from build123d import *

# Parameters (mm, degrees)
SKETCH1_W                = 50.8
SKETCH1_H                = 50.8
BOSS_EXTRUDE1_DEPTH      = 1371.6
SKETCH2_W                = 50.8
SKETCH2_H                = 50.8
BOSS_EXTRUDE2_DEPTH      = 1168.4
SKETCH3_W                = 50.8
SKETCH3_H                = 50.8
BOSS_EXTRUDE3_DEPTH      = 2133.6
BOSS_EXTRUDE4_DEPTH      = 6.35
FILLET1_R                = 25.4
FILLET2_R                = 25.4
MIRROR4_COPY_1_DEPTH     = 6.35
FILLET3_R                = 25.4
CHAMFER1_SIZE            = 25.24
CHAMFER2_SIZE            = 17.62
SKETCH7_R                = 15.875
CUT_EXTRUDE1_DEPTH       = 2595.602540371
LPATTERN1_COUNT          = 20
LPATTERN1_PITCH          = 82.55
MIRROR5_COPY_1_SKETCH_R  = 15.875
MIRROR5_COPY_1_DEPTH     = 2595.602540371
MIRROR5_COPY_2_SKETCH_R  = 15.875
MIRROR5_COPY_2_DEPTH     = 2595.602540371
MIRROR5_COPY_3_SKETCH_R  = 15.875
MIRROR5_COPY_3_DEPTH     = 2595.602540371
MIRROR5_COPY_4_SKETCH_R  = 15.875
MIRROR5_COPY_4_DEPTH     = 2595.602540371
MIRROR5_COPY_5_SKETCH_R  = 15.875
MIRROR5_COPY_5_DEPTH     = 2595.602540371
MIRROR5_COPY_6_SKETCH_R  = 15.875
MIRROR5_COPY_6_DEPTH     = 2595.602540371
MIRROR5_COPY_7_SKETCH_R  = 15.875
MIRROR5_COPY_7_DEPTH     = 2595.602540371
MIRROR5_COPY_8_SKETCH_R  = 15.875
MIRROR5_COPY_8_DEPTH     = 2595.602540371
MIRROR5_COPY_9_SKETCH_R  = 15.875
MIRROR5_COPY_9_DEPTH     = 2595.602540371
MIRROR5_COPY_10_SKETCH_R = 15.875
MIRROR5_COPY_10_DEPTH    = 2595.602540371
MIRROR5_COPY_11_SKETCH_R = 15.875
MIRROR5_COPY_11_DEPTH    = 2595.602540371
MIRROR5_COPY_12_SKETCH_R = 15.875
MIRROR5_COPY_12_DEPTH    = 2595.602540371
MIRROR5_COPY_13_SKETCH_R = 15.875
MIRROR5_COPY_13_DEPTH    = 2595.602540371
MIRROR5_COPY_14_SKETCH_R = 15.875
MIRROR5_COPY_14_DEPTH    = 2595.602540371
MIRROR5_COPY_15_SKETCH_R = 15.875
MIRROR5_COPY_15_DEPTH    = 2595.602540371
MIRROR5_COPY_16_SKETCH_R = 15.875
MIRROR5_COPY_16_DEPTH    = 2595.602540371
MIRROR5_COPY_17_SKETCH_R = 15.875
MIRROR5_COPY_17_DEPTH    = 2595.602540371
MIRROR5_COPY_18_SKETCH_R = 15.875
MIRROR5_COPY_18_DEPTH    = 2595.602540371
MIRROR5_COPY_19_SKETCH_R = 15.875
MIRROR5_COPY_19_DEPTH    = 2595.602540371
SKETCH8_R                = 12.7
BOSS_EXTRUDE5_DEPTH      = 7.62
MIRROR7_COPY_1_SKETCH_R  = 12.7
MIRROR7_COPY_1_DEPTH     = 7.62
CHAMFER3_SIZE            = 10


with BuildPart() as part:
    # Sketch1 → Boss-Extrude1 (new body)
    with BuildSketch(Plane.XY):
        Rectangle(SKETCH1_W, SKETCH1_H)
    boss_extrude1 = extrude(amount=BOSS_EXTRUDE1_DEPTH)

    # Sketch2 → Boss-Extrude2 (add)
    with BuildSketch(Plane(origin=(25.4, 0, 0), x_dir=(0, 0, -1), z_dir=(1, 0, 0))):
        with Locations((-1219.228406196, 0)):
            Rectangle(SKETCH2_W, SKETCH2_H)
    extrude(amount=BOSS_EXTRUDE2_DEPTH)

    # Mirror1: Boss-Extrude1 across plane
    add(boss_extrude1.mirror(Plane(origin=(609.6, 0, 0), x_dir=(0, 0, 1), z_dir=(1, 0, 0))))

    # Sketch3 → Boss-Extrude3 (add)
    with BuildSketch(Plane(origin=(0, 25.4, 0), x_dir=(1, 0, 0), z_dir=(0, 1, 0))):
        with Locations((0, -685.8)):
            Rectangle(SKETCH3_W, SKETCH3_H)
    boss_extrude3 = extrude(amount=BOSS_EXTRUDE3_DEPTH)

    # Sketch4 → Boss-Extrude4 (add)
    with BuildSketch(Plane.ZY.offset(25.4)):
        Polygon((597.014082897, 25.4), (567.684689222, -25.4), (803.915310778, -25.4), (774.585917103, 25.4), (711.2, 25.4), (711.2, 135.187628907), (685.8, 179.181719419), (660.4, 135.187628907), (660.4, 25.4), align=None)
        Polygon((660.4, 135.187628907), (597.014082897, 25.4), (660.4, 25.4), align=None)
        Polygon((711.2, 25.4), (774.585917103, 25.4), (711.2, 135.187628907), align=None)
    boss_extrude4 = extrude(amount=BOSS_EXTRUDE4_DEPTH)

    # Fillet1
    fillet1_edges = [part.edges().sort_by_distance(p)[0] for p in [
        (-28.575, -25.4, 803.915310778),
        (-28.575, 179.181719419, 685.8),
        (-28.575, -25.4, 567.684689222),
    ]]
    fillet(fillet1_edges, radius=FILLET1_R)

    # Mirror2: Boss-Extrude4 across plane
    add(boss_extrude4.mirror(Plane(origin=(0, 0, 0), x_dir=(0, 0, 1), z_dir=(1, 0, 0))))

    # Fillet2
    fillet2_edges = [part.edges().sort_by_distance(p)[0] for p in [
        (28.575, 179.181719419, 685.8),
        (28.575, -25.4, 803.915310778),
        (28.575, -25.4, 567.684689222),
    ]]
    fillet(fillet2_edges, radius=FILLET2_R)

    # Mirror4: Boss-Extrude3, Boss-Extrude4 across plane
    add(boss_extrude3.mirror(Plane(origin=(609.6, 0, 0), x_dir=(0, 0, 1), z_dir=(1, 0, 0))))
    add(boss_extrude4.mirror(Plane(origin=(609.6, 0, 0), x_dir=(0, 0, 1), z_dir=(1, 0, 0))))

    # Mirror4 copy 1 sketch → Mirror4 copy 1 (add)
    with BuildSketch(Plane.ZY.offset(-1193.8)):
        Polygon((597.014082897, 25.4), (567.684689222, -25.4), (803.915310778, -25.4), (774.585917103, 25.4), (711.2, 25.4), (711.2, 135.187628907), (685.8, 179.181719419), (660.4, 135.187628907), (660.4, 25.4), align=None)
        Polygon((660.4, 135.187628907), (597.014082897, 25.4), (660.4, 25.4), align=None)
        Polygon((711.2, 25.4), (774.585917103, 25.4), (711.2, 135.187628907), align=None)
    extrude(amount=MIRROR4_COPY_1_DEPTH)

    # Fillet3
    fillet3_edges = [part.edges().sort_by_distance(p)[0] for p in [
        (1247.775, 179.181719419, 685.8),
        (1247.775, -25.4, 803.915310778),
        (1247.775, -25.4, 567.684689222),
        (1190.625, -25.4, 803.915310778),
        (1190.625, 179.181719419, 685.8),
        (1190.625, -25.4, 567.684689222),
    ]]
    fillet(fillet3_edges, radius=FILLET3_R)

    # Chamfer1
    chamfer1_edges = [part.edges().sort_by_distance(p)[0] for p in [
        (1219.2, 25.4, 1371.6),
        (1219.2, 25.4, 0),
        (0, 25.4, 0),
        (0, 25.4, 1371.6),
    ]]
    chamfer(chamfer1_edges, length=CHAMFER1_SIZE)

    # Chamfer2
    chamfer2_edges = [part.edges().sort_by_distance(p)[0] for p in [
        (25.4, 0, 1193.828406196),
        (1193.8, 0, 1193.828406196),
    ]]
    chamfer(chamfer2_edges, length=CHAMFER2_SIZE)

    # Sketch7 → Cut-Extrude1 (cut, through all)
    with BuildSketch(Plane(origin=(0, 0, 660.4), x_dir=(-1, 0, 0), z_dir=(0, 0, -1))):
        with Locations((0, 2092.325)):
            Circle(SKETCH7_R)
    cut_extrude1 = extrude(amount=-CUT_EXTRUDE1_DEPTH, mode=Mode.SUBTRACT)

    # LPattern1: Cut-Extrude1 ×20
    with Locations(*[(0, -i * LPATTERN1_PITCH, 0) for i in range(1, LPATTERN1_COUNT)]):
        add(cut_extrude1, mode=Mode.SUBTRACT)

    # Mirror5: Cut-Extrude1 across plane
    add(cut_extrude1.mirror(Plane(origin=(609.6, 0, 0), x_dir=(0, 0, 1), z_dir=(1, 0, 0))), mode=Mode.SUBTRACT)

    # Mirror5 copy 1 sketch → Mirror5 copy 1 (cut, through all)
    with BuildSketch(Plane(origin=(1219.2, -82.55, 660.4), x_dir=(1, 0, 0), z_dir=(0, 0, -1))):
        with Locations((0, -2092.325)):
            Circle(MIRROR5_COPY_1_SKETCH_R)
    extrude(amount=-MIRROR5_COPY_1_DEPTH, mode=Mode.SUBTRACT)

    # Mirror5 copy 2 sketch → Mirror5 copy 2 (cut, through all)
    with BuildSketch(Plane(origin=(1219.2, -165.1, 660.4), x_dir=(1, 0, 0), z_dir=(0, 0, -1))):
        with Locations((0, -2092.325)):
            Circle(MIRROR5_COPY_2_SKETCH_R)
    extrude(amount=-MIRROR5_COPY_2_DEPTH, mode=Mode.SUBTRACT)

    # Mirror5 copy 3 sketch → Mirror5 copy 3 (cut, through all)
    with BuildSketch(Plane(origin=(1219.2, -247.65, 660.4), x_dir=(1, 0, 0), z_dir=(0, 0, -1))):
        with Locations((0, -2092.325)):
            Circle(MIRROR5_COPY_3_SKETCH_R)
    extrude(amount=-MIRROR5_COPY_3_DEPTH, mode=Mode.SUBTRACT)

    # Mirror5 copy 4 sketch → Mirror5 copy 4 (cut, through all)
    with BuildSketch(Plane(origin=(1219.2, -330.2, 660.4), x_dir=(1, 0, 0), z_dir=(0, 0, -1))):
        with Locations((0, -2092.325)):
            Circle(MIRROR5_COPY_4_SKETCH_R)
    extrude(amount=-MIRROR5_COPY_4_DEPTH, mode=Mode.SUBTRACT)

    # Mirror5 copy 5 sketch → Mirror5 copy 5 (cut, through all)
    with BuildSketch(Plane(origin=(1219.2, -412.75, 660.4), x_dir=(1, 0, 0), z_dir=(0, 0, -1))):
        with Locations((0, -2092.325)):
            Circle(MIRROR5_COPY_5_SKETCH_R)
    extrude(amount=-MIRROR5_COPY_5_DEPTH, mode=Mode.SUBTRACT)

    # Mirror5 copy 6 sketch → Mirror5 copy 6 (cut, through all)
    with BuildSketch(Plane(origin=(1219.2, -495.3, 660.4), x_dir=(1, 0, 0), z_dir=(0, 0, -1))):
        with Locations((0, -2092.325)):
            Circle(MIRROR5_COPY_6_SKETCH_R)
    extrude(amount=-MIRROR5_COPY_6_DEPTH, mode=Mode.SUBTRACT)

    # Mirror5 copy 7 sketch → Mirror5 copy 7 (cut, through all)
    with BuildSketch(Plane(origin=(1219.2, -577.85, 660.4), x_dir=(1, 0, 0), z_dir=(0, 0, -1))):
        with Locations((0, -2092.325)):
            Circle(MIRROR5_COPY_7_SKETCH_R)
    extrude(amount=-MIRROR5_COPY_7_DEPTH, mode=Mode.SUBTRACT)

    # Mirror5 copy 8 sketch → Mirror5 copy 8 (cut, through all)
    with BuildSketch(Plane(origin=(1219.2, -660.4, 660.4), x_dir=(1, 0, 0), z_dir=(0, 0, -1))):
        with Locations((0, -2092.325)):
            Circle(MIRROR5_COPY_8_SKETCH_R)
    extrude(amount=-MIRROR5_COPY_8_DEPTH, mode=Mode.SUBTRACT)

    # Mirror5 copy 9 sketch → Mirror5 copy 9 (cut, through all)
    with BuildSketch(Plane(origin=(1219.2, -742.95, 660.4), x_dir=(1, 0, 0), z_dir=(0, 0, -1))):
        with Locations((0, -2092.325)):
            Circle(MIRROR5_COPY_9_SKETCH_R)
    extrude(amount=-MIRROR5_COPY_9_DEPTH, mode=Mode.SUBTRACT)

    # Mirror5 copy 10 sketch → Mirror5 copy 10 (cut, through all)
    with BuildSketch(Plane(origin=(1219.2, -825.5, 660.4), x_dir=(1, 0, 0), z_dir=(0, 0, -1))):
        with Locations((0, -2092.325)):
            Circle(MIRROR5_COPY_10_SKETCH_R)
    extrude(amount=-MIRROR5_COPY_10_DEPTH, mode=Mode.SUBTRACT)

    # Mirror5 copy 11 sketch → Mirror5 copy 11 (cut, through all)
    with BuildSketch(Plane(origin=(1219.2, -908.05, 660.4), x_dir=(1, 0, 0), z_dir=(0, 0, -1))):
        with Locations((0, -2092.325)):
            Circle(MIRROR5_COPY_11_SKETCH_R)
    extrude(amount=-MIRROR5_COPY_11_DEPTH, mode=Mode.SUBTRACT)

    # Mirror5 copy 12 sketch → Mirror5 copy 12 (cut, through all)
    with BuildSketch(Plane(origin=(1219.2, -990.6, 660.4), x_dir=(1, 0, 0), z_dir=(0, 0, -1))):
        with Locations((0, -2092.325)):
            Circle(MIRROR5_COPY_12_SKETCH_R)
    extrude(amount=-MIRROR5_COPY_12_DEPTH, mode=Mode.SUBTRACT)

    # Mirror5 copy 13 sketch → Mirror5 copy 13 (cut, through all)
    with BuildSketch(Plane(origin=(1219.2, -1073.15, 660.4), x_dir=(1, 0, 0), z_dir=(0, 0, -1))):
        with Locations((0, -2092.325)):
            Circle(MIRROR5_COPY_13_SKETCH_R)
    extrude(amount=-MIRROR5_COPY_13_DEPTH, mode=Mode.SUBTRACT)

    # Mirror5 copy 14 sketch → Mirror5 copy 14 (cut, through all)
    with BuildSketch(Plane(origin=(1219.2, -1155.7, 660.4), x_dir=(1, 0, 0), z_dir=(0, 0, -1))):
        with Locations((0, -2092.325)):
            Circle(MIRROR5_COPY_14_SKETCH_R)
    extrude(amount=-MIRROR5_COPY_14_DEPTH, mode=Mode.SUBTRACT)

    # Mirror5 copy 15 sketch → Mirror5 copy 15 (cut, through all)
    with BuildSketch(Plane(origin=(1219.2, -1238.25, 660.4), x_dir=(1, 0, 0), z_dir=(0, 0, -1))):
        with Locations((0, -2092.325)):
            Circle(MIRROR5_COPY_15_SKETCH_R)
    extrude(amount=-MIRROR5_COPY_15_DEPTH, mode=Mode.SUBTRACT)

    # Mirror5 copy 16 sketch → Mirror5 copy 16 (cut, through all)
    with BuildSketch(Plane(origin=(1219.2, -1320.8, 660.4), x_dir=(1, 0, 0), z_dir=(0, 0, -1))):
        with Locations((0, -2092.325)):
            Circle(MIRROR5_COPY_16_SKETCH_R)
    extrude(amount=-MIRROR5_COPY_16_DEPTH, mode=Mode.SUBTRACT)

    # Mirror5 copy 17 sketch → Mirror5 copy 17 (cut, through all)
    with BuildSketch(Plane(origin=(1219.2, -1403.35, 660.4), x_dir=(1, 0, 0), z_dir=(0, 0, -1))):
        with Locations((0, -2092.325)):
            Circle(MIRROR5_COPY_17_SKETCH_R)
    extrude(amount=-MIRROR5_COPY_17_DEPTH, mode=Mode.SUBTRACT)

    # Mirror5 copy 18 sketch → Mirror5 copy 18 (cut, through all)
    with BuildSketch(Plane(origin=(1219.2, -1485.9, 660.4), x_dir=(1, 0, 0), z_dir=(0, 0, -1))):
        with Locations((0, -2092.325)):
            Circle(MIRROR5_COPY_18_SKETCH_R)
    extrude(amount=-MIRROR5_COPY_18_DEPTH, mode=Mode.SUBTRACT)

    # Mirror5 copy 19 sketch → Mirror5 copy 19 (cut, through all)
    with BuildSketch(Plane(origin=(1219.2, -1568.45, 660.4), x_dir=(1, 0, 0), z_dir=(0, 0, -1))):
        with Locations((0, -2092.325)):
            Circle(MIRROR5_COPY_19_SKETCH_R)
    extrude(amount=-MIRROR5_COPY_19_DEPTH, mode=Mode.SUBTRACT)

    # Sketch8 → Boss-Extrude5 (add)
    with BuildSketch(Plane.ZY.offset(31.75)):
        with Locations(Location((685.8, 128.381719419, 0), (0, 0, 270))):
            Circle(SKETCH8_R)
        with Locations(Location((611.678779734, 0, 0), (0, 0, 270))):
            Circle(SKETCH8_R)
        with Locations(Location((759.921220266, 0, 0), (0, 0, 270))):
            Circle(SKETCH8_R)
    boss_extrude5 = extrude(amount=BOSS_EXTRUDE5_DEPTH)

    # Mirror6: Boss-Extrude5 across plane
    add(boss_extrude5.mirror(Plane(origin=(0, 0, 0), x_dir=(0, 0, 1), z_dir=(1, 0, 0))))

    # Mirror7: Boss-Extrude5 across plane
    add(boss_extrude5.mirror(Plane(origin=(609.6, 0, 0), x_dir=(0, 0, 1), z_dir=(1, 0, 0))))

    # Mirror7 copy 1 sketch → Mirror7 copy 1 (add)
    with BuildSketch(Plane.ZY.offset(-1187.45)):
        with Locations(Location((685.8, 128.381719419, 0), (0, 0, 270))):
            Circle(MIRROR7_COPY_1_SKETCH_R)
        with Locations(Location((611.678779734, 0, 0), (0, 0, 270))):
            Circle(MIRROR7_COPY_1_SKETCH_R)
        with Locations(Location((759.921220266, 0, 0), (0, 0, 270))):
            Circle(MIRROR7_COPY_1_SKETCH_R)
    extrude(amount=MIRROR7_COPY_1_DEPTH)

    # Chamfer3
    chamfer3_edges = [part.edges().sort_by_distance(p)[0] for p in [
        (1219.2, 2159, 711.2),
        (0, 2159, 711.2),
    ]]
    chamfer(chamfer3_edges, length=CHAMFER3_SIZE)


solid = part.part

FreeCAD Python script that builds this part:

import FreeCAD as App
import Part
import Sketcher
from FreeCAD import Vector
Q = App.Units.Quantity


def edges_at(feature, points):
    """Names of the edges that pass closest to the given points."""
    edges = feature.Shape.Edges
    near = lambda p: min(range(len(edges)), key=lambda i: edges[i].distToShape(Part.Vertex(*p))[0])
    return sorted({f"Edge{near(p) + 1}" for p in points})


def add_polygon(sketch, points):
    """Adds a closed chain of lines whose ends are joined by coincident constraints."""
    first, n = sketch.GeometryCount, len(points)
    for a, b in zip(points, points[1:] + points[:1]):
        sketch.addGeometry(Part.LineSegment(App.Vector(*a, 0), App.Vector(*b, 0)), False)
    for i in range(n):
        sketch.addConstraint(Sketcher.Constraint("Coincident", first + i, 2, first + (i + 1) % n, 1))

doc = App.newDocument("Part")
body = doc.addObject("PartDesign::Body", "Body")

sketch1 = body.newObject("Sketcher::SketchObject", "Sketch")
sketch1.AttachmentSupport = (doc.getObject("XY_Plane"), [""])
sketch1.MapMode = "FlatFace"
add_polygon(sketch1, [(-25, 25), (-25, -25), (25, -25), (25, 25)])
sketch1.addConstraint([
    Sketcher.Constraint("Vertical", 0),
    Sketcher.Constraint("Horizontal", 1),
    Sketcher.Constraint("Vertical", 2),
    Sketcher.Constraint("Horizontal", 3),
    Sketcher.Constraint("Symmetric", 0, 2, 2, 2, -1, 1),
    Sketcher.Constraint("Equal", 3, 0),
    Sketcher.Constraint("DistanceX", 1, 1, 1, 2, Q("2 in")),
])
pad1 = body.newObject("PartDesign::Pad", "Pad")
pad1.Profile = sketch1
pad1.Length = Q("54 in")

sketch2 = body.newObject("Sketcher::SketchObject", "Sketch001")
sketch2.AttachmentSupport = (doc.getObject("YZ_Plane"), [""])
sketch2.MapMode = "FlatFace"
sketch2.AttachmentOffset = App.Placement(Vector(0, 0, 1 * 25.4), App.Rotation())
add_polygon(sketch2, [(25, 1245), (-25, 1245), (-25, 1194), (25, 1194)])
sketch2.addConstraint([
    Sketcher.Constraint("Horizontal", 0),
    Sketcher.Constraint("Vertical", 1),
    Sketcher.Constraint("Horizontal", 2),
    Sketcher.Constraint("Vertical", 3),
    Sketcher.Constraint("Equal", 2, 1),
    Sketcher.Constraint("DistanceX", 0, 2, 0, 1, Q("2 in")),
    Sketcher.Constraint("DistanceX", 0, 2, -1, 1, Q("1 in")),
    Sketcher.Constraint("DistanceY", -1, 1, 0, 2, Q("1244.628406 mm")),
])
pad2 = body.newObject("PartDesign::Pad", "Pad001")
pad2.Profile = sketch2
pad2.Length = Q("46 in")
doc.recompute()

datumplane = body.newObject("PartDesign::Plane", "DatumPlane")
datumplane.AttachmentSupport = (doc.getObject("YZ_Plane"), [""])
datumplane.MapMode = "FlatFace"
datumplane.AttachmentOffset = App.Placement(Vector(0, 0, 24 * 25.4), App.Rotation())
mirrored = body.newObject("PartDesign::Mirrored", "Mirrored")
mirrored.Originals = [pad1]
mirrored.MirrorPlane = (datumplane, [""])
body.Tip = mirrored

sketch3 = body.newObject("Sketcher::SketchObject", "Sketch002")
sketch3.AttachmentSupport = (doc.getObject("XZ_Plane"), [""])
sketch3.MapMode = "FlatFace"
sketch3.AttachmentOffset = App.Placement(Vector(0, 0, -1 * 25.4), App.Rotation())
add_polygon(sketch3, [(-25, 660), (-25, 711), (25, 711), (25, 660)])
sketch3.addConstraint([
    Sketcher.Constraint("Vertical", 0),
    Sketcher.Constraint("Horizontal", 1),
    Sketcher.Constraint("Vertical", 2),
    Sketcher.Constraint("Horizontal", 3),
    Sketcher.Constraint("Equal", 3, 0),
    Sketcher.Constraint("DistanceX", 1, 1, 1, 2, Q("2 in")),
    Sketcher.Constraint("DistanceX", 0, 2, -1, 1, Q("1 in")),
    Sketcher.Constraint("DistanceY", -1, 1, 0, 2, Q("28 in")),
])
pad3 = body.newObject("PartDesign::Pad", "Pad002")
pad3.Profile = sketch3
pad3.Length = Q("84 in")
pad3.Reversed = True

sketch4 = body.newObject("Sketcher::SketchObject", "Sketch003")
sketch4.AttachmentSupport = (doc.getObject("YZ_Plane"), [""])
sketch4.MapMode = "FlatFace"
sketch4.AttachmentOffset = App.Placement(Vector(0, 0, -1 * 25.4), App.Rotation())
add_polygon(sketch4, [(25, 597), (-25, 568), (-25, 804), (25, 775), (135, 711), (179, 686), (135, 660)])
sketch4.addConstraint([
    Sketcher.Constraint("Vertical", 1),
    Sketcher.Constraint("Parallel", 2, 3),
    Sketcher.Constraint("Parallel", 3, 4),
    Sketcher.Constraint("Parallel", 0, 5),
    Sketcher.Constraint("Parallel", 5, 6),
    Sketcher.Constraint("Vertical", 3, 2, 5, 2),
    Sketcher.Constraint("Vertical", 2, 2, 6, 2),
    Sketcher.Constraint("Equal", 0, 2),
    Sketcher.Constraint("Distance", 4, Q("2 in")),
    Sketcher.Constraint("DistanceX", 0, 2, -1, 1, Q("1 in")),
    Sketcher.Constraint("DistanceX", -1, 1, 2, 2, Q("1 in")),
    Sketcher.Constraint("DistanceY", -1, 1, 3, 2, Q("28 in")),
    Sketcher.Constraint("DistanceY", -1, 1, 4, 2, Q("27 in")),
    Sketcher.Constraint("DistanceY", 1, 1, 1, 2, Q("236.230622 mm")),
])
pad4 = body.newObject("PartDesign::Pad", "Pad003")
pad4.Profile = sketch4
pad4.Length = Q("0.25 in")
pad4.Reversed = True
doc.recompute()

fillet = body.newObject("PartDesign::Fillet", "Fillet")
fillet.Base = (pad4, edges_at(pad4, [(-28.575, -25.4, 803.915), (-28.575, 179.182, 685.8), (-28.575, -25.4, 567.685)]))
fillet.Radius = Q("1 in")
doc.recompute()

mirrored2 = body.newObject("PartDesign::Mirrored", "Mirrored001")
mirrored2.Originals = [pad4]
mirrored2.MirrorPlane = (doc.getObject("YZ_Plane"), [""])
body.Tip = mirrored2
doc.recompute()

fillet2 = body.newObject("PartDesign::Fillet", "Fillet001")
fillet2.Base = (mirrored2, edges_at(mirrored2, [(28.575, 179.182, 685.8), (28.575, -25.4, 803.915), (28.575, -25.4, 567.685)]))
fillet2.Radius = Q("1 in")
doc.recompute()

datumplane2 = body.newObject("PartDesign::Plane", "DatumPlane001")
datumplane2.AttachmentSupport = (doc.getObject("YZ_Plane"), [""])
datumplane2.MapMode = "FlatFace"
datumplane2.AttachmentOffset = App.Placement(Vector(0, 0, 24 * 25.4), App.Rotation())
mirrored3 = body.newObject("PartDesign::Mirrored", "Mirrored002")
mirrored3.Originals = [pad3, pad4]
mirrored3.MirrorPlane = (datumplane2, [""])
body.Tip = mirrored3

sketch5 = body.newObject("Sketcher::SketchObject", "Sketch004")
sketch5.AttachmentSupport = (doc.getObject("YZ_Plane"), [""])
sketch5.MapMode = "FlatFace"
sketch5.AttachmentOffset = App.Placement(Vector(0, 0, 47 * 25.4), App.Rotation())
add_polygon(sketch5, [(25, 597), (-25, 568), (-25, 804), (25, 775), (135, 711), (179, 686), (135, 660)])
sketch5.addConstraint([
    Sketcher.Constraint("Vertical", 1),
    Sketcher.Constraint("Parallel", 2, 3),
    Sketcher.Constraint("Parallel", 3, 4),
    Sketcher.Constraint("Parallel", 0, 5),
    Sketcher.Constraint("Parallel", 5, 6),
    Sketcher.Constraint("Vertical", 3, 2, 5, 2),
    Sketcher.Constraint("Vertical", 2, 2, 6, 2),
    Sketcher.Constraint("Equal", 0, 2),
    Sketcher.Constraint("Distance", 4, Q("2 in")),
    Sketcher.Constraint("DistanceX", 0, 2, -1, 1, Q("1 in")),
    Sketcher.Constraint("DistanceX", -1, 1, 2, 2, Q("1 in")),
    Sketcher.Constraint("DistanceY", -1, 1, 3, 2, Q("28 in")),
    Sketcher.Constraint("DistanceY", -1, 1, 4, 2, Q("27 in")),
    Sketcher.Constraint("DistanceY", 1, 1, 1, 2, Q("236.230622 mm")),
])
pad5 = body.newObject("PartDesign::Pad", "Pad004")
pad5.Profile = sketch5
pad5.Length = Q("0.25 in")
pad5.Reversed = True
doc.recompute()

fillet3 = body.newObject("PartDesign::Fillet", "Fillet002")
fillet3.Base = (pad5, edges_at(pad5, [
    (1247.775, 179.182, 685.8),
    (1247.775, -25.4, 803.915),
    (1247.775, -25.4, 567.685),
    (1190.625, -25.4, 803.915),
    (1190.625, 179.182, 685.8),
    (1190.625, -25.4, 567.685),
]))
fillet3.Radius = Q("1 in")
doc.recompute()

chamfer = body.newObject("PartDesign::Chamfer", "Chamfer")
chamfer.Base = (fillet3, edges_at(fillet3, [
    (1219.2, 25.4, 1371.6),
    (1219.2, 25.4, 0),
    (0, 25.4, 0),
    (0, 25.4, 1371.6),
]))
chamfer.Size = 25.24
doc.recompute()

chamfer2 = body.newObject("PartDesign::Chamfer", "Chamfer001")
chamfer2.Base = (chamfer, edges_at(chamfer, [(25.4, 0, 1193.828), (1193.8, 0, 1193.828)]))
chamfer2.Size = 17.62

sketch6 = body.newObject("Sketcher::SketchObject", "Sketch005")
sketch6.AttachmentSupport = (doc.getObject("XY_Plane"), [""])
sketch6.MapMode = "FlatFace"
sketch6.AttachmentOffset = App.Placement(Vector(0, 0, 26 * 25.4), App.Rotation())
sketch6.addGeometry(Part.Circle(Vector(0, 2092, 0), Vector(0, 0, 1), 16), False)
sketch6.addConstraint([
    Sketcher.Constraint("PointOnObject", 0, 3, -2),
    Sketcher.Constraint("Diameter", 0, Q("1.25 in")),
    Sketcher.Constraint("DistanceY", -1, 1, 0, 3, Q("82.375 in")),
])
pocket1 = body.newObject("PartDesign::Pocket", "Pocket")
pocket1.Profile = sketch6
pocket1.Type = "ThroughAll"
pocket1.Reversed = True
doc.recompute()

linearpattern = body.newObject("PartDesign::LinearPattern", "LinearPattern")
linearpattern.Originals = [pocket1]
linearpattern.Direction = (doc.getObject("Y_Axis"), [""])
linearpattern.Mode = "offset"
linearpattern.Offset = Q("3.25 in")
linearpattern.Occurrences = 20
linearpattern.Reversed = True
body.Tip = linearpattern
doc.recompute()

datumplane3 = body.newObject("PartDesign::Plane", "DatumPlane002")
datumplane3.AttachmentSupport = (doc.getObject("YZ_Plane"), [""])
datumplane3.MapMode = "FlatFace"
datumplane3.AttachmentOffset = App.Placement(Vector(0, 0, 24 * 25.4), App.Rotation())
mirrored4 = body.newObject("PartDesign::Mirrored", "Mirrored003")
mirrored4.Originals = [pocket1]
mirrored4.MirrorPlane = (datumplane3, [""])
body.Tip = mirrored4

sketch7 = body.newObject("Sketcher::SketchObject", "Sketch006")
sketch7.AttachmentSupport = (doc.getObject("XY_Plane"), [""])
sketch7.MapMode = "FlatFace"
sketch7.AttachmentOffset = App.Placement(Vector(0, 0, 26 * 25.4), App.Rotation())
sketch7.addGeometry(Part.Circle(Vector(1219, 2010, 0), Vector(0, 0, 1), 16), False)
sketch7.addConstraint([
    Sketcher.Constraint("Diameter", 0, Q("1.25 in")),
    Sketcher.Constraint("DistanceX", -1, 1, 0, 3, Q("48 in")),
    Sketcher.Constraint("DistanceY", -1, 1, 0, 3, Q("79.125 in")),
])
pocket2 = body.newObject("PartDesign::Pocket", "Pocket001")
pocket2.Profile = sketch7
pocket2.Type = "ThroughAll"
pocket2.Reversed = True

sketch8 = body.newObject("Sketcher::SketchObject", "Sketch007")
sketch8.AttachmentSupport = (doc.getObject("XY_Plane"), [""])
sketch8.MapMode = "FlatFace"
sketch8.AttachmentOffset = App.Placement(Vector(0, 0, 26 * 25.4), App.Rotation())
sketch8.addGeometry(Part.Circle(Vector(1219, 1927, 0), Vector(0, 0, 1), 16), False)
sketch8.addConstraint([
    Sketcher.Constraint("Diameter", 0, Q("1.25 in")),
    Sketcher.Constraint("DistanceX", -1, 1, 0, 3, Q("48 in")),
    Sketcher.Constraint("DistanceY", -1, 1, 0, 3, Q("75.875 in")),
])
pocket3 = body.newObject("PartDesign::Pocket", "Pocket002")
pocket3.Profile = sketch8
pocket3.Type = "ThroughAll"
pocket3.Reversed = True

sketch9 = body.newObject("Sketcher::SketchObject", "Sketch008")
sketch9.AttachmentSupport = (doc.getObject("XY_Plane"), [""])
sketch9.MapMode = "FlatFace"
sketch9.AttachmentOffset = App.Placement(Vector(0, 0, 26 * 25.4), App.Rotation())
sketch9.addGeometry(Part.Circle(Vector(1219, 1845, 0), Vector(0, 0, 1), 16), False)
sketch9.addConstraint([
    Sketcher.Constraint("Diameter", 0, Q("1.25 in")),
    Sketcher.Constraint("DistanceX", -1, 1, 0, 3, Q("48 in")),
    Sketcher.Constraint("DistanceY", -1, 1, 0, 3, Q("72.625 in")),
])
pocket4 = body.newObject("PartDesign::Pocket", "Pocket003")
pocket4.Profile = sketch9
pocket4.Type = "ThroughAll"
pocket4.Reversed = True

sketch10 = body.newObject("Sketcher::SketchObject", "Sketch009")
sketch10.AttachmentSupport = (doc.getObject("XY_Plane"), [""])
sketch10.MapMode = "FlatFace"
sketch10.AttachmentOffset = App.Placement(Vector(0, 0, 26 * 25.4), App.Rotation())
sketch10.addGeometry(Part.Circle(Vector(1219, 1762, 0), Vector(0, 0, 1), 16), False)
sketch10.addConstraint([
    Sketcher.Constraint("Diameter", 0, Q("1.25 in")),
    Sketcher.Constraint("DistanceX", -1, 1, 0, 3, Q("48 in")),
    Sketcher.Constraint("DistanceY", -1, 1, 0, 3, Q("69.375 in")),
])
pocket5 = body.newObject("PartDesign::Pocket", "Pocket004")
pocket5.Profile = sketch10
pocket5.Type = "ThroughAll"
pocket5.Reversed = True

sketch11 = body.newObject("Sketcher::SketchObject", "Sketch010")
sketch11.AttachmentSupport = (doc.getObject("XY_Plane"), [""])
sketch11.MapMode = "FlatFace"
sketch11.AttachmentOffset = App.Placement(Vector(0, 0, 26 * 25.4), App.Rotation())
sketch11.addGeometry(Part.Circle(Vector(1219, 1680, 0), Vector(0, 0, 1), 16), False)
sketch11.addConstraint([
    Sketcher.Constraint("Diameter", 0, Q("1.25 in")),
    Sketcher.Constraint("DistanceX", -1, 1, 0, 3, Q("48 in")),
    Sketcher.Constraint("DistanceY", -1, 1, 0, 3, Q("66.125 in")),
])
pocket6 = body.newObject("PartDesign::Pocket", "Pocket005")
pocket6.Profile = sketch11
pocket6.Type = "ThroughAll"
pocket6.Reversed = True

sketch12 = body.newObject("Sketcher::SketchObject", "Sketch011")
sketch12.AttachmentSupport = (doc.getObject("XY_Plane"), [""])
sketch12.MapMode = "FlatFace"
sketch12.AttachmentOffset = App.Placement(Vector(0, 0, 26 * 25.4), App.Rotation())
sketch12.addGeometry(Part.Circle(Vector(1219, 1597, 0), Vector(0, 0, 1), 16), False)
sketch12.addConstraint([
    Sketcher.Constraint("Diameter", 0, Q("1.25 in")),
    Sketcher.Constraint("DistanceX", -1, 1, 0, 3, Q("48 in")),
    Sketcher.Constraint("DistanceY", -1, 1, 0, 3, Q("62.875 in")),
])
pocket7 = body.newObject("PartDesign::Pocket", "Pocket006")
pocket7.Profile = sketch12
pocket7.Type = "ThroughAll"
pocket7.Reversed = True

sketch13 = body.newObject("Sketcher::SketchObject", "Sketch012")
sketch13.AttachmentSupport = (doc.getObject("XY_Plane"), [""])
sketch13.MapMode = "FlatFace"
sketch13.AttachmentOffset = App.Placement(Vector(0, 0, 26 * 25.4), App.Rotation())
sketch13.addGeometry(Part.Circle(Vector(1219, 1514, 0), Vector(0, 0, 1), 16), False)
sketch13.addConstraint([
    Sketcher.Constraint("Diameter", 0, Q("1.25 in")),
    Sketcher.Constraint("DistanceX", -1, 1, 0, 3, Q("48 in")),
    Sketcher.Constraint("DistanceY", -1, 1, 0, 3, Q("59.625 in")),
])
pocket8 = body.newObject("PartDesign::Pocket", "Pocket007")
pocket8.Profile = sketch13
pocket8.Type = "ThroughAll"
pocket8.Reversed = True

sketch14 = body.newObject("Sketcher::SketchObject", "Sketch013")
sketch14.AttachmentSupport = (doc.getObject("XY_Plane"), [""])
sketch14.MapMode = "FlatFace"
sketch14.AttachmentOffset = App.Placement(Vector(0, 0, 26 * 25.4), App.Rotation())
sketch14.addGeometry(Part.Circle(Vector(1219, 1432, 0), Vector(0, 0, 1), 16), False)
sketch14.addConstraint([
    Sketcher.Constraint("Diameter", 0, Q("1.25 in")),
    Sketcher.Constraint("DistanceX", -1, 1, 0, 3, Q("48 in")),
    Sketcher.Constraint("DistanceY", -1, 1, 0, 3, Q("56.375 in")),
])
pocket9 = body.newObject("PartDesign::Pocket", "Pocket008")
pocket9.Profile = sketch14
pocket9.Type = "ThroughAll"
pocket9.Reversed = True

sketch15 = body.newObject("Sketcher::SketchObject", "Sketch014")
sketch15.AttachmentSupport = (doc.getObject("XY_Plane"), [""])
sketch15.MapMode = "FlatFace"
sketch15.AttachmentOffset = App.Placement(Vector(0, 0, 26 * 25.4), App.Rotation())
sketch15.addGeometry(Part.Circle(Vector(1219, 1349, 0), Vector(0, 0, 1), 16), False)
sketch15.addConstraint([
    Sketcher.Constraint("Diameter", 0, Q("1.25 in")),
    Sketcher.Constraint("DistanceX", -1, 1, 0, 3, Q("48 in")),
    Sketcher.Constraint("DistanceY", -1, 1, 0, 3, Q("53.125 in")),
])
pocket10 = body.newObject("PartDesign::Pocket", "Pocket009")
pocket10.Profile = sketch15
pocket10.Type = "ThroughAll"
pocket10.Reversed = True

sketch16 = body.newObject("Sketcher::SketchObject", "Sketch015")
sketch16.AttachmentSupport = (doc.getObject("XY_Plane"), [""])
sketch16.MapMode = "FlatFace"
sketch16.AttachmentOffset = App.Placement(Vector(0, 0, 26 * 25.4), App.Rotation())
sketch16.addGeometry(Part.Circle(Vector(1219, 1267, 0), Vector(0, 0, 1), 16), False)
sketch16.addConstraint([
    Sketcher.Constraint("Diameter", 0, Q("1.25 in")),
    Sketcher.Constraint("DistanceX", -1, 1, 0, 3, Q("48 in")),
    Sketcher.Constraint("DistanceY", -1, 1, 0, 3, Q("49.875 in")),
])
pocket11 = body.newObject("PartDesign::Pocket", "Pocket010")
pocket11.Profile = sketch16
pocket11.Type = "ThroughAll"
pocket11.Reversed = True

sketch17 = body.newObject("Sketcher::SketchObject", "Sketch016")
sketch17.AttachmentSupport = (doc.getObject("XY_Plane"), [""])
sketch17.MapMode = "FlatFace"
sketch17.AttachmentOffset = App.Placement(Vector(0, 0, 26 * 25.4), App.Rotation())
sketch17.addGeometry(Part.Circle(Vector(1219, 1184, 0), Vector(0, 0, 1), 16), False)
sketch17.addConstraint([
    Sketcher.Constraint("Diameter", 0, Q("1.25 in")),
    Sketcher.Constraint("DistanceX", -1, 1, 0, 3, Q("48 in")),
    Sketcher.Constraint("DistanceY", -1, 1, 0, 3, Q("46.625 in")),
])
pocket12 = body.newObject("PartDesign::Pocket", "Pocket011")
pocket12.Profile = sketch17
pocket12.Type = "ThroughAll"
pocket12.Reversed = True

sketch18 = body.newObject("Sketcher::SketchObject", "Sketch017")
sketch18.AttachmentSupport = (doc.getObject("XY_Plane"), [""])
sketch18.MapMode = "FlatFace"
sketch18.AttachmentOffset = App.Placement(Vector(0, 0, 26 * 25.4), App.Rotation())
sketch18.addGeometry(Part.Circle(Vector(1219, 1102, 0), Vector(0, 0, 1), 16), False)
sketch18.addConstraint([
    Sketcher.Constraint("Diameter", 0, Q("1.25 in")),
    Sketcher.Constraint("DistanceX", -1, 1, 0, 3, Q("48 in")),
    Sketcher.Constraint("DistanceY", -1, 1, 0, 3, Q("43.375 in")),
])
pocket13 = body.newObject("PartDesign::Pocket", "Pocket012")
pocket13.Profile = sketch18
pocket13.Type = "ThroughAll"
pocket13.Reversed = True

sketch19 = body.newObject("Sketcher::SketchObject", "Sketch018")
sketch19.AttachmentSupport = (doc.getObject("XY_Plane"), [""])
sketch19.MapMode = "FlatFace"
sketch19.AttachmentOffset = App.Placement(Vector(0, 0, 26 * 25.4), App.Rotation())
sketch19.addGeometry(Part.Circle(Vector(1219, 1019, 0), Vector(0, 0, 1), 16), False)
sketch19.addConstraint([
    Sketcher.Constraint("Diameter", 0, Q("1.25 in")),
    Sketcher.Constraint("DistanceX", -1, 1, 0, 3, Q("48 in")),
    Sketcher.Constraint("DistanceY", -1, 1, 0, 3, Q("40.125 in")),
])
pocket14 = body.newObject("PartDesign::Pocket", "Pocket013")
pocket14.Profile = sketch19
pocket14.Type = "ThroughAll"
pocket14.Reversed = True

sketch20 = body.newObject("Sketcher::SketchObject", "Sketch019")
sketch20.AttachmentSupport = (doc.getObject("XY_Plane"), [""])
sketch20.MapMode = "FlatFace"
sketch20.AttachmentOffset = App.Placement(Vector(0, 0, 26 * 25.4), App.Rotation())
sketch20.addGeometry(Part.Circle(Vector(1219, 937, 0), Vector(0, 0, 1), 16), False)
sketch20.addConstraint([
    Sketcher.Constraint("Diameter", 0, Q("1.25 in")),
    Sketcher.Constraint("DistanceX", -1, 1, 0, 3, Q("48 in")),
    Sketcher.Constraint("DistanceY", -1, 1, 0, 3, Q("36.875 in")),
])
pocket15 = body.newObject("PartDesign::Pocket", "Pocket014")
pocket15.Profile = sketch20
pocket15.Type = "ThroughAll"
pocket15.Reversed = True

sketch21 = body.newObject("Sketcher::SketchObject", "Sketch020")
sketch21.AttachmentSupport = (doc.getObject("XY_Plane"), [""])
sketch21.MapMode = "FlatFace"
sketch21.AttachmentOffset = App.Placement(Vector(0, 0, 26 * 25.4), App.Rotation())
sketch21.addGeometry(Part.Circle(Vector(1219, 854, 0), Vector(0, 0, 1), 16), False)
sketch21.addConstraint([
    Sketcher.Constraint("Diameter", 0, Q("1.25 in")),
    Sketcher.Constraint("DistanceX", -1, 1, 0, 3, Q("48 in")),
    Sketcher.Constraint("DistanceY", -1, 1, 0, 3, Q("33.625 in")),
])
pocket16 = body.newObject("PartDesign::Pocket", "Pocket015")
pocket16.Profile = sketch21
pocket16.Type = "ThroughAll"
pocket16.Reversed = True

sketch22 = body.newObject("Sketcher::SketchObject", "Sketch021")
sketch22.AttachmentSupport = (doc.getObject("XY_Plane"), [""])
sketch22.MapMode = "FlatFace"
sketch22.AttachmentOffset = App.Placement(Vector(0, 0, 26 * 25.4), App.Rotation())
sketch22.addGeometry(Part.Circle(Vector(1219, 772, 0), Vector(0, 0, 1), 16), False)
sketch22.addConstraint([
    Sketcher.Constraint("Diameter", 0, Q("1.25 in")),
    Sketcher.Constraint("DistanceX", -1, 1, 0, 3, Q("48 in")),
    Sketcher.Constraint("DistanceY", -1, 1, 0, 3, Q("30.375 in")),
])
pocket17 = body.newObject("PartDesign::Pocket", "Pocket016")
pocket17.Profile = sketch22
pocket17.Type = "ThroughAll"
pocket17.Reversed = True

sketch23 = body.newObject("Sketcher::SketchObject", "Sketch022")
sketch23.AttachmentSupport = (doc.getObject("XY_Plane"), [""])
sketch23.MapMode = "FlatFace"
sketch23.AttachmentOffset = App.Placement(Vector(0, 0, 26 * 25.4), App.Rotation())
sketch23.addGeometry(Part.Circle(Vector(1219, 689, 0), Vector(0, 0, 1), 16), False)
sketch23.addConstraint([
    Sketcher.Constraint("Diameter", 0, Q("1.25 in")),
    Sketcher.Constraint("DistanceX", -1, 1, 0, 3, Q("48 in")),
    Sketcher.Constraint("DistanceY", -1, 1, 0, 3, Q("27.125 in")),
])
pocket18 = body.newObject("PartDesign::Pocket", "Pocket017")
pocket18.Profile = sketch23
pocket18.Type = "ThroughAll"
pocket18.Reversed = True

sketch24 = body.newObject("Sketcher::SketchObject", "Sketch023")
sketch24.AttachmentSupport = (doc.getObject("XY_Plane"), [""])
sketch24.MapMode = "FlatFace"
sketch24.AttachmentOffset = App.Placement(Vector(0, 0, 26 * 25.4), App.Rotation())
sketch24.addGeometry(Part.Circle(Vector(1219, 606, 0), Vector(0, 0, 1), 16), False)
sketch24.addConstraint([
    Sketcher.Constraint("Diameter", 0, Q("1.25 in")),
    Sketcher.Constraint("DistanceX", -1, 1, 0, 3, Q("48 in")),
    Sketcher.Constraint("DistanceY", -1, 1, 0, 3, Q("23.875 in")),
])
pocket19 = body.newObject("PartDesign::Pocket", "Pocket018")
pocket19.Profile = sketch24
pocket19.Type = "ThroughAll"
pocket19.Reversed = True

sketch25 = body.newObject("Sketcher::SketchObject", "Sketch024")
sketch25.AttachmentSupport = (doc.getObject("XY_Plane"), [""])
sketch25.MapMode = "FlatFace"
sketch25.AttachmentOffset = App.Placement(Vector(0, 0, 26 * 25.4), App.Rotation())
sketch25.addGeometry(Part.Circle(Vector(1219, 524, 0), Vector(0, 0, 1), 16), False)
sketch25.addConstraint([
    Sketcher.Constraint("Diameter", 0, Q("1.25 in")),
    Sketcher.Constraint("DistanceX", -1, 1, 0, 3, Q("48 in")),
    Sketcher.Constraint("DistanceY", -1, 1, 0, 3, Q("20.625 in")),
])
pocket20 = body.newObject("PartDesign::Pocket", "Pocket019")
pocket20.Profile = sketch25
pocket20.Type = "ThroughAll"
pocket20.Reversed = True

sketch26 = body.newObject("Sketcher::SketchObject", "Sketch025")
sketch26.AttachmentSupport = (doc.getObject("YZ_Plane"), [""])
sketch26.MapMode = "FlatFace"
sketch26.AttachmentOffset = App.Placement(Vector(0, 0, -1.25 * 25.4), App.Rotation())
sketch26.addGeometry([
    Part.Circle(Vector(128, 686, 0), Vector(0, 0, 1), 13),
    Part.Circle(Vector(0, 612, 0), Vector(0, 0, 1), 13),
    Part.Circle(Vector(0, 760, 0), Vector(0, 0, 1), 13),
], False)
sketch26.addConstraint([
    Sketcher.Constraint("Equal", 0, 1),
    Sketcher.Constraint("Equal", 1, 2),
    Sketcher.Constraint("PointOnObject", 1, 3, -2),
    Sketcher.Constraint("PointOnObject", 2, 3, -2),
    Sketcher.Constraint("Diameter", 0, Q("1 in")),
    Sketcher.Constraint("DistanceY", -1, 1, 0, 3, Q("27 in")),
    Sketcher.Constraint("DistanceX", -1, 1, 0, 3, Q("128.381719 mm")),
    Sketcher.Constraint("DistanceY", -1, 1, 1, 3, Q("611.67878 mm")),
    Sketcher.Constraint("DistanceY", -1, 1, 2, 3, Q("759.92122 mm")),
])
pad6 = body.newObject("PartDesign::Pad", "Pad005")
pad6.Profile = sketch26
pad6.Length = Q("0.3 in")
pad6.Reversed = True
doc.recompute()

mirrored5 = body.newObject("PartDesign::Mirrored", "Mirrored004")
mirrored5.Originals = [pad6]
mirrored5.MirrorPlane = (doc.getObject("YZ_Plane"), [""])
body.Tip = mirrored5
doc.recompute()

datumplane4 = body.newObject("PartDesign::Plane", "DatumPlane003")
datumplane4.AttachmentSupport = (doc.getObject("YZ_Plane"), [""])
datumplane4.MapMode = "FlatFace"
datumplane4.AttachmentOffset = App.Placement(Vector(0, 0, 24 * 25.4), App.Rotation())
mirrored6 = body.newObject("PartDesign::Mirrored", "Mirrored005")
mirrored6.Originals = [pad6]
mirrored6.MirrorPlane = (datumplane4, [""])
body.Tip = mirrored6

sketch27 = body.newObject("Sketcher::SketchObject", "Sketch026")
sketch27.AttachmentSupport = (doc.getObject("YZ_Plane"), [""])
sketch27.MapMode = "FlatFace"
sketch27.AttachmentOffset = App.Placement(Vector(0, 0, 46.75 * 25.4), App.Rotation())
sketch27.addGeometry([
    Part.Circle(Vector(128, 686, 0), Vector(0, 0, 1), 13),
    Part.Circle(Vector(0, 612, 0), Vector(0, 0, 1), 13),
    Part.Circle(Vector(0, 760, 0), Vector(0, 0, 1), 13),
], False)
sketch27.addConstraint([
    Sketcher.Constraint("Equal", 0, 1),
    Sketcher.Constraint("Equal", 1, 2),
    Sketcher.Constraint("PointOnObject", 1, 3, -2),
    Sketcher.Constraint("PointOnObject", 2, 3, -2),
    Sketcher.Constraint("Diameter", 0, Q("1 in")),
    Sketcher.Constraint("DistanceY", -1, 1, 0, 3, Q("27 in")),
    Sketcher.Constraint("DistanceX", -1, 1, 0, 3, Q("128.381719 mm")),
    Sketcher.Constraint("DistanceY", -1, 1, 1, 3, Q("611.67878 mm")),
    Sketcher.Constraint("DistanceY", -1, 1, 2, 3, Q("759.92122 mm")),
])
pad7 = body.newObject("PartDesign::Pad", "Pad006")
pad7.Profile = sketch27
pad7.Length = Q("0.3 in")
pad7.Reversed = True
doc.recompute()

chamfer3 = body.newObject("PartDesign::Chamfer", "Chamfer002")
chamfer3.Base = (pad7, edges_at(pad7, [(1219.2, 2159, 711.2), (0, 2159, 711.2)]))
chamfer3.Size = 10

doc.recompute()
